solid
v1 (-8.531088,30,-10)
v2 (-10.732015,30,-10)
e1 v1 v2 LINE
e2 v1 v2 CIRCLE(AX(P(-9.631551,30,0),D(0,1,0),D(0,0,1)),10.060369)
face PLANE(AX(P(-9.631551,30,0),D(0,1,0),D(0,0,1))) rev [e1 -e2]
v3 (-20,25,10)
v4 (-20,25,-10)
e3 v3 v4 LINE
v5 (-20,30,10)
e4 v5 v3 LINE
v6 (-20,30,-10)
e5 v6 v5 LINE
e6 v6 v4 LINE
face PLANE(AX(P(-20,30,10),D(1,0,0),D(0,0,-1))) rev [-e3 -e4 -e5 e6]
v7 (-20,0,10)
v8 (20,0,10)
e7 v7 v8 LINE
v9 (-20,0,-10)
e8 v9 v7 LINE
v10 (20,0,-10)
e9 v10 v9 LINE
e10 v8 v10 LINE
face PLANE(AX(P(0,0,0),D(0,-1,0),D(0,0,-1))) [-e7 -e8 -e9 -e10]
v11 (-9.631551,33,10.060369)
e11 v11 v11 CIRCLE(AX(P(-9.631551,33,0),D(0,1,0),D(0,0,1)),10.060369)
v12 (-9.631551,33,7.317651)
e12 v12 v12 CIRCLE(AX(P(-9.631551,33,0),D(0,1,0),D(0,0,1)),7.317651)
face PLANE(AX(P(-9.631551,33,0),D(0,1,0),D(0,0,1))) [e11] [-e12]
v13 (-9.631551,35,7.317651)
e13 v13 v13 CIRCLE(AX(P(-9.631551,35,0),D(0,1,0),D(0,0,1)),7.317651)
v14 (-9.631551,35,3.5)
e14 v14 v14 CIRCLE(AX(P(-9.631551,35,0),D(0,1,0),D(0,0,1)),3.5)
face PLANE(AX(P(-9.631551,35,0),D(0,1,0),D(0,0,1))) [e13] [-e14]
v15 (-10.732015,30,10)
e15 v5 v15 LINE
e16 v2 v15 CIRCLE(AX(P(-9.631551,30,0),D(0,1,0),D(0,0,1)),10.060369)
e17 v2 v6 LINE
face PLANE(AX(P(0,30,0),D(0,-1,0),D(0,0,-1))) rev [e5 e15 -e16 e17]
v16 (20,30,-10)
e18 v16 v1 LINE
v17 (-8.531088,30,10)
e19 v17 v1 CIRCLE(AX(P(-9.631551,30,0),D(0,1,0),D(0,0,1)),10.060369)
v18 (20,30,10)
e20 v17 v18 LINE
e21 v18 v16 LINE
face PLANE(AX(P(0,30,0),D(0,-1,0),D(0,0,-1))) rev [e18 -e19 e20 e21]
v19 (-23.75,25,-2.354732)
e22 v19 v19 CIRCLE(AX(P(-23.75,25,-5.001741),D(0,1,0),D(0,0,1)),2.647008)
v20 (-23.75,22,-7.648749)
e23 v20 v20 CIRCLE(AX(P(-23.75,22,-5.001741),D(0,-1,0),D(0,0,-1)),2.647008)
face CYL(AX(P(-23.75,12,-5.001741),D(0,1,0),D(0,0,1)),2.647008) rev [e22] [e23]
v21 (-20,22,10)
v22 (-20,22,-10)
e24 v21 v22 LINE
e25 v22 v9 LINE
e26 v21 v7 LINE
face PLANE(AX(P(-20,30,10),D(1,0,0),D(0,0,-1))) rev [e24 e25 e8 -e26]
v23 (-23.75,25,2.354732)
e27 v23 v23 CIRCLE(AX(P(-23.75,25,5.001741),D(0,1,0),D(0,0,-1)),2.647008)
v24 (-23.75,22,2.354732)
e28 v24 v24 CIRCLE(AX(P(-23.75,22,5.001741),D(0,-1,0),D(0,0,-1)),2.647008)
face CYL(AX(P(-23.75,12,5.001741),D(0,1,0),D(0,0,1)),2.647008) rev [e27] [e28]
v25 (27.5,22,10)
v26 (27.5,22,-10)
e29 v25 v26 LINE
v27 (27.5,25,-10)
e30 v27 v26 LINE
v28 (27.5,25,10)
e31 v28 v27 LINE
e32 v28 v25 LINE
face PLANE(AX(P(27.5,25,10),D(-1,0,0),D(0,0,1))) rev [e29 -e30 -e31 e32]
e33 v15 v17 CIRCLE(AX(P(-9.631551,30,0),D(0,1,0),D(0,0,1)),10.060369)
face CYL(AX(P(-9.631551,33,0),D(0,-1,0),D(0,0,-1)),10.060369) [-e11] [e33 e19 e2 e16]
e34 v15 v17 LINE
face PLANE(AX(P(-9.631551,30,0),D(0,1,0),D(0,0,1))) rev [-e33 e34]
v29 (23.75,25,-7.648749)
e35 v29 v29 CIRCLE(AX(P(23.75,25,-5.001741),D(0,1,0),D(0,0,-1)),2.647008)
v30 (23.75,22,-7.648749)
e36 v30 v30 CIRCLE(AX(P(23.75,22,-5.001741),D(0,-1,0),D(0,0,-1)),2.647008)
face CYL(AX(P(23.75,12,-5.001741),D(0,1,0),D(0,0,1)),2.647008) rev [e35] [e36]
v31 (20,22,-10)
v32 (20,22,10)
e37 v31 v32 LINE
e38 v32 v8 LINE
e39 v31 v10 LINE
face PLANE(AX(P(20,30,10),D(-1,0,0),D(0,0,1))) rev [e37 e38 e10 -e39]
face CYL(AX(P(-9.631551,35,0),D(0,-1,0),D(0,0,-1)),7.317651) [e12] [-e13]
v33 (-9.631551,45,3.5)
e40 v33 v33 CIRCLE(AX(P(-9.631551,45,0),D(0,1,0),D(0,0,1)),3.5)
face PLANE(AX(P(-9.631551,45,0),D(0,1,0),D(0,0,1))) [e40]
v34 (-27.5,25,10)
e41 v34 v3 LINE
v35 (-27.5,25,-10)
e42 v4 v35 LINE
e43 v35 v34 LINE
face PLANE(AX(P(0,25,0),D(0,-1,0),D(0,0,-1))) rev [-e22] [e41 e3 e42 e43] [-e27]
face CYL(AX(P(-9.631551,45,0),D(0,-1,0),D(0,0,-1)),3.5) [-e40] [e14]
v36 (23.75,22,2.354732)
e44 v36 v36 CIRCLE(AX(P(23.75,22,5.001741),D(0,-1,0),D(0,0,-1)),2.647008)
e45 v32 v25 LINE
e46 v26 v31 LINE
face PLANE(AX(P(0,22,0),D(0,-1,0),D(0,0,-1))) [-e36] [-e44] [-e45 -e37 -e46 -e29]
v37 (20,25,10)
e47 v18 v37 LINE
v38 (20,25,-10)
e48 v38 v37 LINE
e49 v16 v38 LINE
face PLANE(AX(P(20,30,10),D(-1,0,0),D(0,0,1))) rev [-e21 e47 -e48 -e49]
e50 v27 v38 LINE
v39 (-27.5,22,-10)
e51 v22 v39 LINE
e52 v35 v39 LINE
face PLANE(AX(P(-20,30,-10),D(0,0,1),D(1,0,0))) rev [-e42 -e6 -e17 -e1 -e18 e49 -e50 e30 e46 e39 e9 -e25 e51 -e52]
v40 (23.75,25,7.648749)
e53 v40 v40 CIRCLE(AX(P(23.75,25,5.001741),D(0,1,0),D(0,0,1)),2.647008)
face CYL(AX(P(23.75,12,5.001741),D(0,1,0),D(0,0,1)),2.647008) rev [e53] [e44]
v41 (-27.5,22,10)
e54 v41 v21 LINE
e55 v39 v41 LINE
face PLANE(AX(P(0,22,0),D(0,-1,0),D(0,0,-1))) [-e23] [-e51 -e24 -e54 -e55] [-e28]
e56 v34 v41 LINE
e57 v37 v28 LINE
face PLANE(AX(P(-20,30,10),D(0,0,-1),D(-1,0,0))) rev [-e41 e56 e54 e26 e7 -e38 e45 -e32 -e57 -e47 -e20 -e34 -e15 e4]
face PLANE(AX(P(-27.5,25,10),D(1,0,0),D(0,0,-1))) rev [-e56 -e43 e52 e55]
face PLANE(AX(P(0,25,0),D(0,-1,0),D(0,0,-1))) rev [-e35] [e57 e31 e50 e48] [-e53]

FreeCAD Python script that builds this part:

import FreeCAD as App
import Part
import Sketcher
Q = App.Units.Quantity


def add_polygon(sketch, points):
    """Adds a closed chain of lines whose ends are joined by coincident constraints."""
    first, n = sketch.GeometryCount, len(points)
    for a, b in zip(points, points[1:] + points[:1]):
        sketch.addGeometry(Part.LineSegment(App.Vector(*a, 0), App.Vector(*b, 0)), False)
    for i in range(n):
        sketch.addConstraint(Sketcher.Constraint("Coincident", first + i, 2, first + (i + 1) % n, 1))

doc = App.newDocument("Part")
body = doc.addObject("PartDesign::Body", "Body")

# Sketch on XZ plane
sketch1 = body.newObject("Sketcher::SketchObject", "Sketch")
sketch1.AttachmentSupport = (doc.getObject("XZ_Plane"), [""])
sketch1.MapMode = "FlatFace"
add_polygon(sketch1, [(-20, -10), (-20, 10), (20, 10), (20, -10)])  # lines 0-3
sketch1.addConstraint([
    Sketcher.Constraint("Vertical", 0),
    Sketcher.Constraint("Horizontal", 1),
    Sketcher.Constraint("Vertical", 2),
    Sketcher.Constraint("Horizontal", 3),
    Sketcher.Constraint("Symmetric", 0, 2, 2, 2, -1, 1),
    Sketcher.Constraint("DistanceX", 1, 1, 1, 2, Q("40 mm")),
    Sketcher.Constraint("DistanceY", 0, 1, 0, 2, Q("20 mm")),
])
pad1 = body.newObject("PartDesign::Pad", "Pad")
pad1.Profile = sketch1
pad1.Length = 30
pad1.Reversed = True

# Sketch on XZ plane
sketch2 = body.newObject("Sketcher::SketchObject", "Sketch001")
sketch2.AttachmentSupport = (doc.getObject("XZ_Plane"), [""])
sketch2.MapMode = "FlatFace"
sketch2.AttachmentOffset = App.Placement(App.Vector(0, 0, -22), App.Rotation())
add_polygon(sketch2, [(-28, -10), (-28, 10), (28, 10), (28, -10)])  # lines 0-3
sketch2.addConstraint([
    Sketcher.Constraint("Vertical", 0),
    Sketcher.Constraint("Horizontal", 1),
    Sketcher.Constraint("Vertical", 2),
    Sketcher.Constraint("Horizontal", 3),
    Sketcher.Constraint("Symmetric", 0, 2, 2, 2, -1, 1),
    Sketcher.Constraint("DistanceX", 1, 1, 1, 2, Q("55 mm")),
    Sketcher.Constraint("DistanceY", 0, 1, 0, 2, Q("20 mm")),
])
pad2 = body.newObject("PartDesign::Pad", "Pad001")
pad2.Profile = sketch2
pad2.Length = 3
pad2.Reversed = True

# Sketch on XZ plane
sketch3 = body.newObject("Sketcher::SketchObject", "Sketch002")
sketch3.AttachmentSupport = (doc.getObject("XZ_Plane"), [""])
sketch3.MapMode = "FlatFace"
sketch3.AttachmentOffset = App.Placement(App.Vector(0, 0, -25), App.Rotation())
sketch3.addGeometry([
    Part.Circle(App.Vector(-23.8, -5, 0), App.Vector(0, 0, 1), 2.6),
    Part.Circle(App.Vector(-23.8, 5, 0), App.Vector(0, 0, 1), 2.6),
    Part.Circle(App.Vector(23.8, 5, 0), App.Vector(0, 0, 1), 2.6),
    Part.Circle(App.Vector(23.8, -5, 0), App.Vector(0, 0, 1), 2.6),
], False)
sketch3.addConstraint([
    Sketcher.Constraint("Equal", 0, 1),
    Sketcher.Constraint("Equal", 1, 2),
    Sketcher.Constraint("Equal", 2, 3),
    Sketcher.Constraint("Symmetric", 0, 3, 2, 3, -1, 1),
    Sketcher.Constraint("Symmetric", 1, 3, 3, 3, -1, 1),
    Sketcher.Constraint("Symmetric", 1, 3, 2, 3, -2),
    Sketcher.Constraint("DistanceX", 1, 3, 2, 3, Q("47.5 mm")),
    Sketcher.Constraint("Diameter", 0, Q("5.294017 mm")),
    Sketcher.Constraint("DistanceY", 0, 3, -1, 1, Q("5.001741 mm")),
])
pocket1 = body.newObject("PartDesign::Pocket", "Pocket")
pocket1.Profile = sketch3
pocket1.Length = 13
pocket1.Reversed = True

# Sketch on XZ plane
sketch4 = body.newObject("Sketcher::SketchObject", "Sketch003")
sketch4.AttachmentSupport = (doc.getObject("XZ_Plane"), [""])
sketch4.MapMode = "FlatFace"
sketch4.AttachmentOffset = App.Placement(App.Vector(0, 0, -30), App.Rotation())
sketch4.addGeometry(Part.Circle(App.Vector(-10, 0, 0), App.Vector(0, 0, 1), 10), False)
sketch4.addConstraint([
    Sketcher.Constraint("PointOnObject", 0, 3, -1),
    Sketcher.Constraint("Diameter", 0, Q("20.120738 mm")),
    Sketcher.Constraint("DistanceX", 0, 3, -1, 1, Q("9.631551 mm")),
])
pad3 = body.newObject("PartDesign::Pad", "Pad002")
pad3.Profile = sketch4
pad3.Length = 3
pad3.Reversed = True

# Sketch on XZ plane
sketch5 = body.newObject("Sketcher::SketchObject", "Sketch004")
sketch5.AttachmentSupport = (doc.getObject("XZ_Plane"), [""])
sketch5.MapMode = "FlatFace"
sketch5.AttachmentOffset = App.Placement(App.Vector(0, 0, -33), App.Rotation())
sketch5.addGeometry(Part.Circle(App.Vector(-10, 0, 0), App.Vector(0, 0, 1), 7), False)
sketch5.addConstraint([
    Sketcher.Constraint("PointOnObject", 0, 3, -1),
    Sketcher.Constraint("Diameter", 0, Q("14.635302 mm")),
    Sketcher.Constraint("DistanceX", 0, 3, -1, 1, Q("9.631551 mm")),
])
pad4 = body.newObject("PartDesign::Pad", "Pad003")
pad4.Profile = sketch5
pad4.Length = 2
pad4.Reversed = True

# Sketch on XZ plane
sketch6 = body.newObject("Sketcher::SketchObject", "Sketch005")
sketch6.AttachmentSupport = (doc.getObject("XZ_Plane"), [""])
sketch6.MapMode = "FlatFace"
sketch6.AttachmentOffset = App.Placement(App.Vector(0, 0, -35), App.Rotation())
sketch6.addGeometry(Part.Circle(App.Vector(-9.6, 0, 0), App.Vector(0, 0, 1), 3.5), False)
sketch6.addConstraint([
    Sketcher.Constraint("PointOnObject", 0, 3, -1),
    Sketcher.Constraint("Diameter", 0, Q("7 mm")),
    Sketcher.Constraint("DistanceX", 0, 3, -1, 1, Q("9.631551 mm")),
])
pad5 = body.newObject("PartDesign::Pad", "Pad004")
pad5.Profile = sketch6
pad5.Length = 10
pad5.Reversed = True

doc.recompute()
